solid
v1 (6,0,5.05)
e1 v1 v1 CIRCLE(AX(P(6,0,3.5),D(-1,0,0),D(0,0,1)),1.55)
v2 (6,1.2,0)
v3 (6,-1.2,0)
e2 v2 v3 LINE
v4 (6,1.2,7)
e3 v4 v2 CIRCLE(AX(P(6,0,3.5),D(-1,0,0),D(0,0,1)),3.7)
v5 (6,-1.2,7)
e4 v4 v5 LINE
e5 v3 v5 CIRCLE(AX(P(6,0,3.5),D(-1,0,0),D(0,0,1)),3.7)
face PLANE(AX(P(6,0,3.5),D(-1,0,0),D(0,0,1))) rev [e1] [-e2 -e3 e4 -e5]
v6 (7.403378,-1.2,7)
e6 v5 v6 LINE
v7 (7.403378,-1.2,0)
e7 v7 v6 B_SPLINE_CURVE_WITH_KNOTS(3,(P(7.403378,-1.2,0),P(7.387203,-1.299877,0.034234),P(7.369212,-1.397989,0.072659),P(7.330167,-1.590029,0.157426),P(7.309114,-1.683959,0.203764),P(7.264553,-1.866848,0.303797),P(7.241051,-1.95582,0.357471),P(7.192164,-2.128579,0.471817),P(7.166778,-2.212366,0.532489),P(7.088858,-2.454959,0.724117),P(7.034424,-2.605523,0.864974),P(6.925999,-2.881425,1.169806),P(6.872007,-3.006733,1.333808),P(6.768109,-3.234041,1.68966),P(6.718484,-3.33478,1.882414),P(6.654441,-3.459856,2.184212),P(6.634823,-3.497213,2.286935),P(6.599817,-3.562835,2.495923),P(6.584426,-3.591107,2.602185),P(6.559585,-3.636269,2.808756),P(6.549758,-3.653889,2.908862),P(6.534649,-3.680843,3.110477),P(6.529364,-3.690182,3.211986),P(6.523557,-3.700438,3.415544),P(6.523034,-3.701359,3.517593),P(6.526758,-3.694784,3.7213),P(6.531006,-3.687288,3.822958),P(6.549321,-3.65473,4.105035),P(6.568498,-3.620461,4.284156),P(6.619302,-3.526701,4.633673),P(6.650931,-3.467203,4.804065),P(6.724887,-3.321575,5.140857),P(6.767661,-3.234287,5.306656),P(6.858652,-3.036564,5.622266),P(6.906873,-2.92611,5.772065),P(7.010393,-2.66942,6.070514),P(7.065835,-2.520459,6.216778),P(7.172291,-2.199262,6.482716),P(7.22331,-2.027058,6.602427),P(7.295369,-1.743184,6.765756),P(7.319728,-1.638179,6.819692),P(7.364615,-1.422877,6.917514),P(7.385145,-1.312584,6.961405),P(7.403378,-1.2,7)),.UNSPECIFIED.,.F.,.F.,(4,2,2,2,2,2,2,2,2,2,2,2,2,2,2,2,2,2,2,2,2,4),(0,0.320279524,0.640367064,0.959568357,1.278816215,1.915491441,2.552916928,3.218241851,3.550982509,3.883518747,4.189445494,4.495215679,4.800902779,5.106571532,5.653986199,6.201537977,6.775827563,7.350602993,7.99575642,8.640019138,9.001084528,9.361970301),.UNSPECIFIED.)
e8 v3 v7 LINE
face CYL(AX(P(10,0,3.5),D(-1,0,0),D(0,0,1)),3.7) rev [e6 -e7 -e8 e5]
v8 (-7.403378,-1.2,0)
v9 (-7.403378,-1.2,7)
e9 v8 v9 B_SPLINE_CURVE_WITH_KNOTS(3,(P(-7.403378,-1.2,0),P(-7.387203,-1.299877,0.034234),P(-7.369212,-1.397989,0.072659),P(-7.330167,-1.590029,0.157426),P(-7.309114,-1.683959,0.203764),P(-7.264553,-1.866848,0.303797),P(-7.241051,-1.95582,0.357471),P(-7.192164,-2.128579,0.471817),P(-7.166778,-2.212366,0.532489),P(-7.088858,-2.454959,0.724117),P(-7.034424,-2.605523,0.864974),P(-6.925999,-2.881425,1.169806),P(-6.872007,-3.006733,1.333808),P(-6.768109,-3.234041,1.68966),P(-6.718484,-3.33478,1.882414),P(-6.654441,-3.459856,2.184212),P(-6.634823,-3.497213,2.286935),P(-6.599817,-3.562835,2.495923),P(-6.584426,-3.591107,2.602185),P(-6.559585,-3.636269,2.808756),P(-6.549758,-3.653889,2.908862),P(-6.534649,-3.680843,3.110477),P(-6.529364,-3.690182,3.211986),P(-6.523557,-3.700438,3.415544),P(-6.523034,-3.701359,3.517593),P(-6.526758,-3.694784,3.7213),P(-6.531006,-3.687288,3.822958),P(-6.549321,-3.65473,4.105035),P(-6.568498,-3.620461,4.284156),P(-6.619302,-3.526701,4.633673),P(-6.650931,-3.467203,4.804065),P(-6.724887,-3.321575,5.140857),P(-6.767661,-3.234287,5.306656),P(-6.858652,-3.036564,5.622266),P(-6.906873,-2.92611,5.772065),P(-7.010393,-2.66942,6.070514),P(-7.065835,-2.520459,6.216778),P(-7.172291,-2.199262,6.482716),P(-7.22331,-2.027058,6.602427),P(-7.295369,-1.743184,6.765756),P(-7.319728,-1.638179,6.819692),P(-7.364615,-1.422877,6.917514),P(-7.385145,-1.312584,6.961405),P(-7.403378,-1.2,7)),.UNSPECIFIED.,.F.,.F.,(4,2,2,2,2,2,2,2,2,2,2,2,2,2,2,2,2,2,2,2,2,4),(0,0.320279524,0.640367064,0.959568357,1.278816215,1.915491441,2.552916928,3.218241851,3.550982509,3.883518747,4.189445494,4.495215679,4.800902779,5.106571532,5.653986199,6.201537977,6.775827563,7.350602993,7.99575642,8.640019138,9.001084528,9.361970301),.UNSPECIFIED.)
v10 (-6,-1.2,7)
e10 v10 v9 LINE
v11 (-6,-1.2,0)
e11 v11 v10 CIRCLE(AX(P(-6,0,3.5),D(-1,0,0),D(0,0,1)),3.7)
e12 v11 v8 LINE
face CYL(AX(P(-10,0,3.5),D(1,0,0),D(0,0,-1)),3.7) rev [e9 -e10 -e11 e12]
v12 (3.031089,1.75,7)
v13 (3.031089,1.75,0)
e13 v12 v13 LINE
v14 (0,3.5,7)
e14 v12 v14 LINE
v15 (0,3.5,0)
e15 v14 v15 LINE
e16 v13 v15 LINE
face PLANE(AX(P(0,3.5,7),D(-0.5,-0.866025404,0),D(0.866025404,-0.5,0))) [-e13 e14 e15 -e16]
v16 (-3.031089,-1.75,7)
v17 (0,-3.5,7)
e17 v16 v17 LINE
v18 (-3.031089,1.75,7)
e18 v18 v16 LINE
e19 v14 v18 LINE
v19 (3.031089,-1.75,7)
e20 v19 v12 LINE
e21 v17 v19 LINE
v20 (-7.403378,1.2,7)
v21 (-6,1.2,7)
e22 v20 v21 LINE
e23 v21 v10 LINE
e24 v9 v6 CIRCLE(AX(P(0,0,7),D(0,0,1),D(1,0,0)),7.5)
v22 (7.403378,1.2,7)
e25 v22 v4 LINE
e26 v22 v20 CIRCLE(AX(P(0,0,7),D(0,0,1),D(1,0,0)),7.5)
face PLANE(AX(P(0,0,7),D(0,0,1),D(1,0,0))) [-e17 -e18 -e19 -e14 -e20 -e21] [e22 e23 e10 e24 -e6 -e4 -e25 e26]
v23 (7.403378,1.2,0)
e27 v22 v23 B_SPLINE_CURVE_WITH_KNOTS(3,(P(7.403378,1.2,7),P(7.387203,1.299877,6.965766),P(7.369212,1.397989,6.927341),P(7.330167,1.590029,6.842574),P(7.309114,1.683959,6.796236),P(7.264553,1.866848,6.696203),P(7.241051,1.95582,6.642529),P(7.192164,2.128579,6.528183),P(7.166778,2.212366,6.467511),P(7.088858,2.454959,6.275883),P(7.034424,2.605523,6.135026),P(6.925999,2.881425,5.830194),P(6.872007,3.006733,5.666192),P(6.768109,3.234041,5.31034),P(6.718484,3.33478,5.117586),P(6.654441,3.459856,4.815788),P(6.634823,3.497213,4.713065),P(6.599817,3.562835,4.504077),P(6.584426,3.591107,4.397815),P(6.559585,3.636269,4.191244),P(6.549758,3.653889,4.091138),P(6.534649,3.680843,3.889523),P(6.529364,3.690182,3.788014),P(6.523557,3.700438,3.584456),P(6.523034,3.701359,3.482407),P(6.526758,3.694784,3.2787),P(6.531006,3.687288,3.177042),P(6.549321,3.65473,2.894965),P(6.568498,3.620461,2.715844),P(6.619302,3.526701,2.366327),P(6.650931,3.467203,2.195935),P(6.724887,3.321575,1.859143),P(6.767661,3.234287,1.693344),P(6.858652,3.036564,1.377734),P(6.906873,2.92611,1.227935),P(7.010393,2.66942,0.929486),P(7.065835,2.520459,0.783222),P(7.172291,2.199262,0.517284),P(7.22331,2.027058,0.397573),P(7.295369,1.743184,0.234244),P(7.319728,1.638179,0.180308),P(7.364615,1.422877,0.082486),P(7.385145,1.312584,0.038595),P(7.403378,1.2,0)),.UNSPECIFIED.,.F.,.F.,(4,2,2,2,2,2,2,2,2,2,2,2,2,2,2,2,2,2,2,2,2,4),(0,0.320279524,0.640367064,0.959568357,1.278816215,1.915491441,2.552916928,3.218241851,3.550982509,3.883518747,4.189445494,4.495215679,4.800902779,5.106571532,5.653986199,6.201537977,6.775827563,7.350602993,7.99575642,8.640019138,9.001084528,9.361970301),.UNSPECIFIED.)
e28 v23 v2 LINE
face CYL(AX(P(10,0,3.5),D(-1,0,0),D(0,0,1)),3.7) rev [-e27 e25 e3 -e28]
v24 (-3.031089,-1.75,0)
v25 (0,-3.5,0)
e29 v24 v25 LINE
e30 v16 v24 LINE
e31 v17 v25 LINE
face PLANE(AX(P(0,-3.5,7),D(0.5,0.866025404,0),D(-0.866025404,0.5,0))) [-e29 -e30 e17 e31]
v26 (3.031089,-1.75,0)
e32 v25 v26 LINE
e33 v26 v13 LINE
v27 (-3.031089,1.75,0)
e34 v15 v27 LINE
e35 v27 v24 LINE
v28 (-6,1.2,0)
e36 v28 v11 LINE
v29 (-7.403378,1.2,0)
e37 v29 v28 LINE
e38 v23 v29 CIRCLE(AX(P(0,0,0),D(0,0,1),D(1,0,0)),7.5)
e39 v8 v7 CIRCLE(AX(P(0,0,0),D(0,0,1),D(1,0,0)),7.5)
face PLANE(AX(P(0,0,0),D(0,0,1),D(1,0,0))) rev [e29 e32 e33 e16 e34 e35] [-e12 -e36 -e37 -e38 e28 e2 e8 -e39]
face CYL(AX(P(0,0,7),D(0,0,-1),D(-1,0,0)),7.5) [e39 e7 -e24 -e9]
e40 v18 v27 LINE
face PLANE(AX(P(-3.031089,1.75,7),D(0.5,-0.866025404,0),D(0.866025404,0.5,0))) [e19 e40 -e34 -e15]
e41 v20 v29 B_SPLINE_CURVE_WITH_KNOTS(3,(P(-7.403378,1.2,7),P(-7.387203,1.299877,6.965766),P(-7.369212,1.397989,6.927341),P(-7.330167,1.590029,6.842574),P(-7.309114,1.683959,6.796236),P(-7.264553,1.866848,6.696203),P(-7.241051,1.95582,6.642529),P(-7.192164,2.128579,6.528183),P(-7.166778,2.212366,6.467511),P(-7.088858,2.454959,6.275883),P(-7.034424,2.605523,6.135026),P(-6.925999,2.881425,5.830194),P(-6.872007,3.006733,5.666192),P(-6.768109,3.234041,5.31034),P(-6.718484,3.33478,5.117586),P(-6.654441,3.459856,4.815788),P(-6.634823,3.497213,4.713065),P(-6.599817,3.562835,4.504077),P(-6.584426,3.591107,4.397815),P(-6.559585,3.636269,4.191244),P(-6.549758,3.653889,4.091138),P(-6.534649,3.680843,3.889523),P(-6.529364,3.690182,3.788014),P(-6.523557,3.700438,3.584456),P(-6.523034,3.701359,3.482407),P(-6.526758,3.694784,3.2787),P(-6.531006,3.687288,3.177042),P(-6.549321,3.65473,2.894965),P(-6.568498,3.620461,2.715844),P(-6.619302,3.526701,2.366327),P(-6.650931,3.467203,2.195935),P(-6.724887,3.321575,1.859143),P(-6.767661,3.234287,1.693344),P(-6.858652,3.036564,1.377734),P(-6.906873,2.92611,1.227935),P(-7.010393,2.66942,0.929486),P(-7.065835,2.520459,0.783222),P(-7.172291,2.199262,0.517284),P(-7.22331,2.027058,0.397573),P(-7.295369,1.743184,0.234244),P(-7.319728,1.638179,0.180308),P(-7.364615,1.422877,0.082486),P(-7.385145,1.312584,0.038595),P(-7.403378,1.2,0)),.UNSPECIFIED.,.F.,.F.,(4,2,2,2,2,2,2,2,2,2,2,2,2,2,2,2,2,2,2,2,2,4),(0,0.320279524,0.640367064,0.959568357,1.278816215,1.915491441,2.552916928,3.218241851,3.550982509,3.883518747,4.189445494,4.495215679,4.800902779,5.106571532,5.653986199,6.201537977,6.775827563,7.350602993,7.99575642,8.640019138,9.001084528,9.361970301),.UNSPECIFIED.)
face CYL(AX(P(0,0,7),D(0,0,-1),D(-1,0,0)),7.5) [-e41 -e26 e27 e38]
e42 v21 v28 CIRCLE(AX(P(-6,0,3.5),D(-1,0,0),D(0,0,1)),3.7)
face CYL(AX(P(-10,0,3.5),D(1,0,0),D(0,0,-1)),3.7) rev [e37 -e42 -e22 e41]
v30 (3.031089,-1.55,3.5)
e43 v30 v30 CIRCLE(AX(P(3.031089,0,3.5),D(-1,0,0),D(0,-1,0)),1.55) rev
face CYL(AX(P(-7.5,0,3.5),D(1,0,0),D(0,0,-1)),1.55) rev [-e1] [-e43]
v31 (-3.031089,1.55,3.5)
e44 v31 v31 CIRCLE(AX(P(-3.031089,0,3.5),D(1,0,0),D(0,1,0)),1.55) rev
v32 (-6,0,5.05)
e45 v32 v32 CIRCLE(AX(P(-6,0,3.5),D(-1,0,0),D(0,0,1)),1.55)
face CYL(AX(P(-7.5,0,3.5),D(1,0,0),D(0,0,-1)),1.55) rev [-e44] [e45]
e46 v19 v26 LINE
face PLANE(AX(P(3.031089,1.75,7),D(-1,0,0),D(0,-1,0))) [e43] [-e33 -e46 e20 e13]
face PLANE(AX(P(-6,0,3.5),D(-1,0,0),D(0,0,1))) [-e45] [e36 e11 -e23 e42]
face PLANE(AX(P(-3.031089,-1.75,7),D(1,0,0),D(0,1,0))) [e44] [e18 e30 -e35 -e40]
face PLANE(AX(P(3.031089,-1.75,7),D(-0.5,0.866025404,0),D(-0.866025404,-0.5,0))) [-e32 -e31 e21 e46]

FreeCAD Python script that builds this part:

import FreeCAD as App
import Part
import Sketcher

V = App.Vector
Q = App.Units.Quantity


def add_polygon(sketch, points):
    """Adds a closed chain of lines whose ends are joined by coincident constraints."""
    first, n = sketch.GeometryCount, len(points)
    for a, b in zip(points, points[1:] + points[:1]):
        sketch.addGeometry(Part.LineSegment(App.Vector(*a, 0), App.Vector(*b, 0)), False)
    for i in range(n):
        sketch.addConstraint(Sketcher.Constraint("Coincident", first + i, 2, first + (i + 1) % n, 1))

doc = App.newDocument("Part")
body = doc.addObject("PartDesign::Body", "Body")

# Sketch on XY plane
sketch1 = body.newObject("Sketcher::SketchObject", "Sketch")
sketch1.AttachmentSupport = (doc.getObject("XY_Plane"), [""])
sketch1.MapMode = "FlatFace"
sketch1.addGeometry(Part.Circle(V(0, 0, 0), V(0, 0, 1), 7.5), False)  # 0
add_polygon(sketch1, [(-3.031089, -1.75), (-3.031089, 1.75), (0, 3.5), (3.031089, 1.75), (3.031089, -1.75), (0, -3.5)])  # lines 1-6
sketch1.addConstraint(Sketcher.Constraint("Vertical", 1))
sketch1.addConstraint(Sketcher.Constraint("Vertical", 4))
sketch1.addConstraint(Sketcher.Constraint("Coincident", 0, 3, -1, 1))
sketch1.addConstraint(Sketcher.Constraint("Symmetric", 1, 2, 4, 2, -1, 1))
sketch1.addConstraint(Sketcher.Constraint("Symmetric", 2, 2, 5, 2, -1, 1))
sketch1.addConstraint(Sketcher.Constraint("PointOnObject", 2, 2, -2))
sketch1.addConstraint(Sketcher.Constraint("Parallel", 3, 6))
sketch1.addConstraint(Sketcher.Constraint("Horizontal", 1, 2, 3, 2))
sketch1.addConstraint(Sketcher.Constraint("Diameter", 0, Q("15 mm")))
sketch1.addConstraint(Sketcher.Constraint("Angle", 2, Q("30 deg")))
sketch1.addConstraint(Sketcher.Constraint("DistanceY", 1, 1, 1, 2, Q("3.5 mm")))
sketch1.addConstraint(Sketcher.Constraint("DistanceY", 5, 2, 2, 2, Q("7 mm")))
pad1 = body.newObject("PartDesign::Pad", "Pad")
pad1.Profile = sketch1
pad1.Length = 7

# Sketch on YZ plane
sketch2 = body.newObject("Sketcher::SketchObject", "Sketch001")
sketch2.AttachmentSupport = (doc.getObject("YZ_Plane"), [""])
sketch2.MapMode = "FlatFace"
sketch2.addGeometry(Part.Circle(V(0, 3.5, 0), V(0, 0, 1), 1.55), False)
sketch2.addConstraint(Sketcher.Constraint("PointOnObject", 0, 3, -2))
sketch2.addConstraint(Sketcher.Constraint("Diameter", 0, Q("3.1 mm")))
sketch2.addConstraint(Sketcher.Constraint("DistanceY", -1, 1, 0, 3, Q("3.5 mm")))
pocket1 = body.newObject("PartDesign::Pocket", "Pocket")
pocket1.Profile = sketch2
pocket1.Type = "ThroughAll"
pocket1.Midplane = True

# Sketch on YZ plane
sketch3 = body.newObject("Sketcher::SketchObject", "Sketch002")
sketch3.AttachmentSupport = (doc.getObject("YZ_Plane"), [""])
sketch3.MapMode = "FlatFace"
sketch3.AttachmentOffset = App.Placement(V(0, 0, -6), App.Rotation())
sketch3.addGeometry(Part.Circle(V(0, 3.5, 0), V(0, 0, 1), 3.7), False)
sketch3.addConstraint(Sketcher.Constraint("PointOnObject", 0, 3, -2))
sketch3.addConstraint(Sketcher.Constraint("Diameter", 0, Q("7.4 mm")))
sketch3.addConstraint(Sketcher.Constraint("DistanceY", -1, 1, 0, 3, Q("3.5 mm")))
pocket2 = body.newObject("PartDesign::Pocket", "Pocket001")
pocket2.Profile = sketch3
pocket2.Length = 4

# Sketch on YZ plane
sketch4 = body.newObject("Sketcher::SketchObject", "Sketch003")
sketch4.AttachmentSupport = (doc.getObject("YZ_Plane"), [""])
sketch4.MapMode = "FlatFace"
sketch4.AttachmentOffset = App.Placement(V(0, 0, 10), App.Rotation())
sketch4.addGeometry(Part.Circle(V(0, 3.5, 0), V(0, 0, 1), 3.7), False)
sketch4.addConstraint(Sketcher.Constraint("PointOnObject", 0, 3, -2))
sketch4.addConstraint(Sketcher.Constraint("Diameter", 0, Q("7.4 mm")))
sketch4.addConstraint(Sketcher.Constraint("DistanceY", -1, 1, 0, 3, Q("3.5 mm")))
pocket3 = body.newObject("PartDesign::Pocket", "Pocket002")
pocket3.Profile = sketch4
pocket3.Length = 4

doc.recompute()
